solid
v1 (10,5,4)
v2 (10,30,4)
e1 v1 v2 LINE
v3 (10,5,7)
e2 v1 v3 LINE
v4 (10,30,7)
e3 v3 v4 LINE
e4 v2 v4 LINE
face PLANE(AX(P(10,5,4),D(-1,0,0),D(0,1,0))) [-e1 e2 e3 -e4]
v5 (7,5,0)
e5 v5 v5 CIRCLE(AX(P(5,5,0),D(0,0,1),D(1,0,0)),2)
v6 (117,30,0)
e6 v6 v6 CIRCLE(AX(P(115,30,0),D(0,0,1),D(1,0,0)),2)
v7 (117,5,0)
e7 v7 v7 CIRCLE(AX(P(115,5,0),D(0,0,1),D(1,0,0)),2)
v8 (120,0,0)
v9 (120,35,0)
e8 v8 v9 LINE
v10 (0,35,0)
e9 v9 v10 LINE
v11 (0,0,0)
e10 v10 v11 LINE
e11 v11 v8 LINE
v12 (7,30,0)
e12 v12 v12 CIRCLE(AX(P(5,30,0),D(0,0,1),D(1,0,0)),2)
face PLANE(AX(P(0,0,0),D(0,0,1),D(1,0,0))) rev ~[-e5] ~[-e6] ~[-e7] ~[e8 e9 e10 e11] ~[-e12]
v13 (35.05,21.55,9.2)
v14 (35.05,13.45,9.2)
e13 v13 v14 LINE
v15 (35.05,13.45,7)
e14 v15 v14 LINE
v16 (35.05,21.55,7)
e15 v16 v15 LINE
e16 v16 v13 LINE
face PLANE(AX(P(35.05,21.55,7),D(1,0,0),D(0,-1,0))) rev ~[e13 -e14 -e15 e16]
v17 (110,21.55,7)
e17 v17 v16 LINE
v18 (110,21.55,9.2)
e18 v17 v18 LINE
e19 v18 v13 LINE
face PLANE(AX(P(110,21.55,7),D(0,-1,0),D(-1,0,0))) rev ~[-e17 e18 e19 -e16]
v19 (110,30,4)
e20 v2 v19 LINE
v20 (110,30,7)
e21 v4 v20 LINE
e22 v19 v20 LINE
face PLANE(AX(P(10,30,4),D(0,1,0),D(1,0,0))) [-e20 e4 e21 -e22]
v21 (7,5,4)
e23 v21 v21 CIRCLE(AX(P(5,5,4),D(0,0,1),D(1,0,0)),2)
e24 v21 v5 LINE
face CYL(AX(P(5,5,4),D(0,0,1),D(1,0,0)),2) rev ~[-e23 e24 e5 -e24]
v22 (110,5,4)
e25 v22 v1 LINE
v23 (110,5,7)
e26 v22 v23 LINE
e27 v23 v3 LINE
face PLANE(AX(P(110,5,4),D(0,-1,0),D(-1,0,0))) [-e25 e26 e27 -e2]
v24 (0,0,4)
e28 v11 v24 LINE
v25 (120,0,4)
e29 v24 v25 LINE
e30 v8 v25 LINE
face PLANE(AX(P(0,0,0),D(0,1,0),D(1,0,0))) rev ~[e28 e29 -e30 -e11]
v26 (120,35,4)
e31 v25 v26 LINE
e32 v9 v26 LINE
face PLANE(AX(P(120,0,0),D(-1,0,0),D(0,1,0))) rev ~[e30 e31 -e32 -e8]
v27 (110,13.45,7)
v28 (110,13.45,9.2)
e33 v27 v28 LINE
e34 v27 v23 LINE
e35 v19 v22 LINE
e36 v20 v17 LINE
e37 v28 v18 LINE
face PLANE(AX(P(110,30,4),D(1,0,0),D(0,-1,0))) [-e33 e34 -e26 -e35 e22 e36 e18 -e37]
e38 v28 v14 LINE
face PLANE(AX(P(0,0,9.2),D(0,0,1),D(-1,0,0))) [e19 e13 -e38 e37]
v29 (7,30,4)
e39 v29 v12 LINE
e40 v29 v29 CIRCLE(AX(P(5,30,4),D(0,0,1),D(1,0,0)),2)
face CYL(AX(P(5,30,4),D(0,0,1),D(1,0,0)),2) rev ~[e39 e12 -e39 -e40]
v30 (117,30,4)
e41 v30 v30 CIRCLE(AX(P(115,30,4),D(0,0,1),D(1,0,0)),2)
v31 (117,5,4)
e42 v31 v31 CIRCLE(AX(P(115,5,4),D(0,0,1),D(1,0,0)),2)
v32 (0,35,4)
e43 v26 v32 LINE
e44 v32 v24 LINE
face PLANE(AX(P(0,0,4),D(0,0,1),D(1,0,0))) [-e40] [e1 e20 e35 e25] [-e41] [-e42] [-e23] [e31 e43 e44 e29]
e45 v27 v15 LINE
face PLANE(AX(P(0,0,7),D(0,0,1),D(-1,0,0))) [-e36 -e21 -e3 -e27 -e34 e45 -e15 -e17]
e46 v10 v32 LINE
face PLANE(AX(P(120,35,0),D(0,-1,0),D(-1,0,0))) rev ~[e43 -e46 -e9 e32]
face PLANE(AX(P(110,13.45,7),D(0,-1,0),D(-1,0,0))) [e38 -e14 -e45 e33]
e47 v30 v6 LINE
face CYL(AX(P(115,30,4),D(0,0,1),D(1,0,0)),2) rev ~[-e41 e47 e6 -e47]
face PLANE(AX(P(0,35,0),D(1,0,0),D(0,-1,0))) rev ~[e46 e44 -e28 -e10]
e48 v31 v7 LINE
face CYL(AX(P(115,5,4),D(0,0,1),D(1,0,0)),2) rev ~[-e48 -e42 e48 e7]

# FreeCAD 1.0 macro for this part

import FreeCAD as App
import Part
import Sketcher

V = App.Vector
Q = App.Units.Quantity


def add_polygon(sketch, points):
    """Adds a closed chain of lines whose ends are joined by coincident constraints."""
    first, n = sketch.GeometryCount, len(points)
    for a, b in zip(points, points[1:] + points[:1]):
        sketch.addGeometry(Part.LineSegment(App.Vector(*a, 0), App.Vector(*b, 0)), False)
    for i in range(n):
        sketch.addConstraint(Sketcher.Constraint("Coincident", first + i, 2, first + (i + 1) % n, 1))

doc = App.newDocument("Part")
body = doc.addObject("PartDesign::Body", "Body")

# Sketch on XY plane
sketch1 = body.newObject("Sketcher::SketchObject", "Sketch")
sketch1.AttachmentSupport = (doc.getObject("XY_Plane"), [""])
sketch1.MapMode = "FlatFace"
add_polygon(sketch1, [(0, 35), (0, 0), (120, 0), (120, 35)])  # lines 0-3
sketch1.addConstraint(Sketcher.Constraint("Vertical", 0))
sketch1.addConstraint(Sketcher.Constraint("Horizontal", 1))
sketch1.addConstraint(Sketcher.Constraint("Vertical", 2))
sketch1.addConstraint(Sketcher.Constraint("Horizontal", 3))
sketch1.addConstraint(Sketcher.Constraint("Coincident", 0, 2, -1, 1))
sketch1.addConstraint(Sketcher.Constraint("DistanceX", 1, 1, 1, 2, Q("120 mm")))
sketch1.addConstraint(Sketcher.Constraint("DistanceY", 0, 2, 0, 1, Q("35 mm")))
pad1 = body.newObject("PartDesign::Pad", "Pad")
pad1.Profile = sketch1
pad1.Length = 4

# Sketch on XY plane
sketch2 = body.newObject("Sketcher::SketchObject", "Sketch001")
sketch2.AttachmentSupport = (doc.getObject("XY_Plane"), [""])
sketch2.MapMode = "FlatFace"
sketch2.AttachmentOffset = App.Placement(V(0, 0, 4), App.Rotation())
sketch2.addGeometry(Part.Circle(V(5, 30, 0), V(0, 0, 1), 2), False)
sketch2.addGeometry(Part.Circle(V(5, 5, 0), V(0, 0, 1), 2), False)
sketch2.addGeometry(Part.Circle(V(115, 30, 0), V(0, 0, 1), 2), False)
sketch2.addGeometry(Part.Circle(V(115, 5, 0), V(0, 0, 1), 2), False)
sketch2.addConstraint(Sketcher.Constraint("Equal", 0, 1))
sketch2.addConstraint(Sketcher.Constraint("Equal", 1, 2))
sketch2.addConstraint(Sketcher.Constraint("Equal", 2, 3))
sketch2.addConstraint(Sketcher.Constraint("Horizontal", 0, 3, 2, 3))
sketch2.addConstraint(Sketcher.Constraint("Horizontal", 1, 3, 3, 3))
sketch2.addConstraint(Sketcher.Constraint("Vertical", 0, 3, 1, 3))
sketch2.addConstraint(Sketcher.Constraint("Vertical", 2, 3, 3, 3))
sketch2.addConstraint(Sketcher.Constraint("Diameter", 0, Q("4 mm")))
sketch2.addConstraint(Sketcher.Constraint("DistanceX", -1, 1, 0, 3, Q("5 mm")))
sketch2.addConstraint(Sketcher.Constraint("DistanceY", -1, 1, 0, 3, Q("30 mm")))
sketch2.addConstraint(Sketcher.Constraint("DistanceY", -1, 1, 1, 3, Q("5 mm")))
sketch2.addConstraint(Sketcher.Constraint("DistanceX", -1, 1, 2, 3, Q("115 mm")))
pocket1 = body.newObject("PartDesign::Pocket", "Pocket")
pocket1.Profile = sketch2
pocket1.Length = 20

# Sketch on XY plane
sketch3 = body.newObject("Sketcher::SketchObject", "Sketch002")
sketch3.AttachmentSupport = (doc.getObject("XY_Plane"), [""])
sketch3.MapMode = "FlatFace"
sketch3.AttachmentOffset = App.Placement(V(0, 0, 4), App.Rotation())
add_polygon(sketch3, [(110, 30), (10, 30), (10, 5), (110, 5)])  # lines 0-3
sketch3.addConstraint(Sketcher.Constraint("Horizontal", 0))
sketch3.addConstraint(Sketcher.Constraint("Vertical", 1))
sketch3.addConstraint(Sketcher.Constraint("Horizontal", 2))
sketch3.addConstraint(Sketcher.Constraint("Vertical", 3))
sketch3.addConstraint(Sketcher.Constraint("DistanceX", 0, 2, 0, 1, Q("100 mm")))
sketch3.addConstraint(Sketcher.Constraint("DistanceY", 1, 2, 1, 1, Q("25 mm")))
sketch3.addConstraint(Sketcher.Constraint("DistanceX", -1, 1, 0, 2, Q("10 mm")))
sketch3.addConstraint(Sketcher.Constraint("DistanceY", -1, 1, 0, 2, Q("30 mm")))
pad2 = body.newObject("PartDesign::Pad", "Pad001")
pad2.Profile = sketch3
pad2.Length = 3

# Sketch on XY plane
sketch4 = body.newObject("Sketcher::SketchObject", "Sketch003")
sketch4.AttachmentSupport = (doc.getObject("XY_Plane"), [""])
sketch4.MapMode = "FlatFace"
sketch4.AttachmentOffset = App.Placement(V(0, 0, 7), App.Rotation())
add_polygon(sketch4, [(35.05, 13.45), (110, 13.45), (110, 21.55), (35.05, 21.55)])  # lines 0-3
sketch4.addConstraint(Sketcher.Constraint("Horizontal", 0))
sketch4.addConstraint(Sketcher.Constraint("Vertical", 1))
sketch4.addConstraint(Sketcher.Constraint("Horizontal", 2))
sketch4.addConstraint(Sketcher.Constraint("Vertical", 3))
sketch4.addConstraint(Sketcher.Constraint("DistanceX", 0, 1, 0, 2, Q("74.95 mm")))
sketch4.addConstraint(Sketcher.Constraint("DistanceY", 1, 1, 1, 2, Q("8.1 mm")))
sketch4.addConstraint(Sketcher.Constraint("DistanceX", -1, 1, 0, 2, Q("110 mm")))
sketch4.addConstraint(Sketcher.Constraint("DistanceY", -1, 1, 0, 2, Q("13.45 mm")))
pad3 = body.newObject("PartDesign::Pad", "Pad002")
pad3.Profile = sketch4
pad3.Length = 2.2

doc.recompute()
